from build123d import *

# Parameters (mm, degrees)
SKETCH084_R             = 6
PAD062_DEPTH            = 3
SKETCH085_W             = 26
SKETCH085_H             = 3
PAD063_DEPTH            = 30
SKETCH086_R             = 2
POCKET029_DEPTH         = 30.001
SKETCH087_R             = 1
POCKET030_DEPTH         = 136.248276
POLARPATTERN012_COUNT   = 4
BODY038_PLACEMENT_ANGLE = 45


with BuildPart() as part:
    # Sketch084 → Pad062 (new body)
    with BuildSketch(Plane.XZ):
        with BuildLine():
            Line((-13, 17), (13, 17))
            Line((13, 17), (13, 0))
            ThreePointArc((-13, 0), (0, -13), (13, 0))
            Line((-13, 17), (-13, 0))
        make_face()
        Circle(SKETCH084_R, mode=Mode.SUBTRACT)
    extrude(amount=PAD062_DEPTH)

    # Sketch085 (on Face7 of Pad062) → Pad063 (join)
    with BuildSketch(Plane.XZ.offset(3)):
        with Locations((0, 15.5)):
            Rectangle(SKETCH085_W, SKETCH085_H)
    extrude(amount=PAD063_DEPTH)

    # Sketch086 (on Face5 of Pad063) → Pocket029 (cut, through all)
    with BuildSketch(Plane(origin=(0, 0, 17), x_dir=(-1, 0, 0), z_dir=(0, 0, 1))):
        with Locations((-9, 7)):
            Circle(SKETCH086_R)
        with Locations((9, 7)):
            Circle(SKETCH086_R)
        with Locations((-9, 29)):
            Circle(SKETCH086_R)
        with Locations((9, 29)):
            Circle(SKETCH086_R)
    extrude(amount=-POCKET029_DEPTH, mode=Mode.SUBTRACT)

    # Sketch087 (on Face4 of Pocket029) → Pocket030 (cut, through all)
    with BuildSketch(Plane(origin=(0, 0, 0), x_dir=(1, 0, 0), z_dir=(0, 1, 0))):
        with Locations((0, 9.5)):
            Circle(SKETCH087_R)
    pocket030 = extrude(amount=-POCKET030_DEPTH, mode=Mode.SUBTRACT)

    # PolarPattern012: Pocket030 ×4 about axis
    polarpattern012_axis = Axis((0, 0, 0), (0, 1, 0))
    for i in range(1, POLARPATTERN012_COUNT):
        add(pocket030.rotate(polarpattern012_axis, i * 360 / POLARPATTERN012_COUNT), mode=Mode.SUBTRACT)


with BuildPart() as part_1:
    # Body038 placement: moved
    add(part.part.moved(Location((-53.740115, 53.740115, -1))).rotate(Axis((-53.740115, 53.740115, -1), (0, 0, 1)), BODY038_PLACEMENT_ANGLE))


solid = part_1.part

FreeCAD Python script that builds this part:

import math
import FreeCAD as App
import Part
import Sketcher

doc = App.newDocument("Part")
body = doc.addObject("PartDesign::Body", "Body")

sketch1 = body.newObject("Sketcher::SketchObject", "Sketch")
sketch1.AttachmentSupport = (doc.getObject("XZ_Plane"), [""])
sketch1.MapMode = "FlatFace"
sketch1.addGeometry(Part.LineSegment(App.Vector(13, 17, 0), App.Vector(-13, 17, 0)), False)
sketch1.addGeometry(Part.LineSegment(App.Vector(-13, 17, 0), App.Vector(-13, 0, 0)), False)
sketch1.addGeometry(Part.ArcOfCircle(Part.Circle(App.Vector(0, 0, 0), App.Vector(0, 0, 1), 13), math.radians(180), math.radians(360)), False)
sketch1.addGeometry(Part.LineSegment(App.Vector(13, 0, 0), App.Vector(13, 17, 0)), False)
sketch1.addGeometry(Part.Circle(App.Vector(0, 0, 0), App.Vector(0, 0, 1), 6), False)
sketch1.addConstraint(Sketcher.Constraint("Coincident", 0, 2, 1, 1))
sketch1.addConstraint(Sketcher.Constraint("Tangent", 1, 2, 2, 1))
sketch1.addConstraint(Sketcher.Constraint("Tangent", 2, 2, 3, 1))
sketch1.addConstraint(Sketcher.Constraint("Coincident", 3, 2, 0, 1))
sketch1.addConstraint(Sketcher.Constraint("Horizontal", 0))
sketch1.addConstraint(Sketcher.Constraint("Vertical", 1))
sketch1.addConstraint(Sketcher.Constraint("Vertical", 3))
sketch1.addConstraint(Sketcher.Constraint("Coincident", 2, 3, -1, 1))
sketch1.addConstraint(Sketcher.Constraint("Coincident", 4, 3, -1, 1))
sketch1.addConstraint(Sketcher.Constraint("Diameter", 4, 12.0))
sketch1.addConstraint(Sketcher.Constraint("Radius", 2, 13.0))
sketch1.addConstraint(Sketcher.Constraint("DistanceY", 1, 2, 1, 1, 17.0))
pad1 = body.newObject("PartDesign::Pad", "Pad")
pad1.Profile = sketch1
pad1.Length = 3

sketch2 = body.newObject("Sketcher::SketchObject", "Sketch001")
sketch2.AttachmentSupport = (doc.getObject("XZ_Plane"), [""])
sketch2.MapMode = "FlatFace"
sketch2.AttachmentOffset = App.Placement(App.Vector(0, 0, 3), App.Rotation())
sketch2.addGeometry(Part.LineSegment(App.Vector(-13, 17, 0), App.Vector(-13, 14, 0)), False)
sketch2.addGeometry(Part.LineSegment(App.Vector(-13, 14, 0), App.Vector(13, 14, 0)), False)
sketch2.addGeometry(Part.LineSegment(App.Vector(13, 14, 0), App.Vector(13, 17, 0)), False)
sketch2.addGeometry(Part.LineSegment(App.Vector(13, 17, 0), App.Vector(-13, 17, 0)), False)
sketch2.addConstraint(Sketcher.Constraint("Coincident", 0, 2, 1, 1))
sketch2.addConstraint(Sketcher.Constraint("Coincident", 1, 2, 2, 1))
sketch2.addConstraint(Sketcher.Constraint("Coincident", 2, 2, 3, 1))
sketch2.addConstraint(Sketcher.Constraint("Coincident", 3, 2, 0, 1))
sketch2.addConstraint(Sketcher.Constraint("Vertical", 0))
sketch2.addConstraint(Sketcher.Constraint("Horizontal", 1))
sketch2.addConstraint(Sketcher.Constraint("Vertical", 2))
sketch2.addConstraint(Sketcher.Constraint("Horizontal", 3))
sketch2.addConstraint(Sketcher.Constraint("DistanceX", 1, 1, 1, 2, 26.0))
sketch2.addConstraint(Sketcher.Constraint("DistanceY", 0, 2, 0, 1, 3.0))
sketch2.addConstraint(Sketcher.Constraint("DistanceX", 0, 2, -1, 1, 13.0))
sketch2.addConstraint(Sketcher.Constraint("DistanceY", -1, 1, 0, 2, 14.0))
pad2 = body.newObject("PartDesign::Pad", "Pad001")
pad2.Profile = sketch2
pad2.Length = 30

sketch3 = body.newObject("Sketcher::SketchObject", "Sketch002")
sketch3.AttachmentSupport = (doc.getObject("XY_Plane"), [""])
sketch3.MapMode = "FlatFace"
sketch3.AttachmentOffset = App.Placement(App.Vector(0, 0, 17), App.Rotation())
sketch3.addGeometry(Part.Circle(App.Vector(9, -7, 0), App.Vector(0, 0, 1), 2), False)
sketch3.addGeometry(Part.Circle(App.Vector(-9, -7, 0), App.Vector(0, 0, 1), 2), False)
sketch3.addGeometry(Part.Circle(App.Vector(9, -29, 0), App.Vector(0, 0, 1), 2), False)
sketch3.addGeometry(Part.Circle(App.Vector(-9, -29, 0), App.Vector(0, 0, 1), 2), False)
sketch3.addConstraint(Sketcher.Constraint("Equal", 0, 1))
sketch3.addConstraint(Sketcher.Constraint("Equal", 1, 2))
sketch3.addConstraint(Sketcher.Constraint("Equal", 2, 3))
sketch3.addConstraint(Sketcher.Constraint("Symmetric", 0, 3, 1, 3, -2))
sketch3.addConstraint(Sketcher.Constraint("Symmetric", 2, 3, 3, 3, -2))
sketch3.addConstraint(Sketcher.Constraint("Vertical", 0, 3, 2, 3))
sketch3.addConstraint(Sketcher.Constraint("Diameter", 0, 4.0))
sketch3.addConstraint(Sketcher.Constraint("DistanceX", -1, 1, 0, 3, 9.0))
sketch3.addConstraint(Sketcher.Constraint("DistanceY", 0, 3, -1, 1, 7.0))
sketch3.addConstraint(Sketcher.Constraint("DistanceY", 2, 3, -1, 1, 29.0))
pocket1 = body.newObject("PartDesign::Pocket", "Pocket")
pocket1.Profile = sketch3
pocket1.Type = "ThroughAll"

sketch4 = body.newObject("Sketcher::SketchObject", "Sketch003")
sketch4.AttachmentSupport = (doc.getObject("XZ_Plane"), [""])
sketch4.MapMode = "FlatFace"
sketch4.addGeometry(Part.Circle(App.Vector(0, -9.5, 0), App.Vector(0, 0, 1), 1), False)
sketch4.addConstraint(Sketcher.Constraint("PointOnObject", 0, 3, -2))
sketch4.addConstraint(Sketcher.Constraint("Diameter", 0, 2.0))
sketch4.addConstraint(Sketcher.Constraint("DistanceY", 0, 3, -1, 1, 9.5))
pocket2 = body.newObject("PartDesign::Pocket", "Pocket001")
pocket2.Profile = sketch4
pocket2.Type = "ThroughAll"
pocket2.Reversed = True
doc.recompute()

polarpattern = body.newObject("PartDesign::PolarPattern", "PolarPattern")
polarpattern.Originals = [pocket2]
polarpattern.Axis = (doc.getObject("Y_Axis"), [""])
polarpattern.Angle = 360
polarpattern.Occurrences = 4
body.Tip = polarpattern
body2 = doc.addObject("PartDesign::Body", "Body001")
doc.recompute()

body.Placement = App.Placement(App.Vector(-53.740115, 53.740115, -1), App.Rotation(App.Vector(0, 0, 1), 45))
boolean = body2.newObject("PartDesign::Boolean", "Boolean")
boolean.Type = "Fuse"
boolean.addObjects([body])

doc.recompute()
